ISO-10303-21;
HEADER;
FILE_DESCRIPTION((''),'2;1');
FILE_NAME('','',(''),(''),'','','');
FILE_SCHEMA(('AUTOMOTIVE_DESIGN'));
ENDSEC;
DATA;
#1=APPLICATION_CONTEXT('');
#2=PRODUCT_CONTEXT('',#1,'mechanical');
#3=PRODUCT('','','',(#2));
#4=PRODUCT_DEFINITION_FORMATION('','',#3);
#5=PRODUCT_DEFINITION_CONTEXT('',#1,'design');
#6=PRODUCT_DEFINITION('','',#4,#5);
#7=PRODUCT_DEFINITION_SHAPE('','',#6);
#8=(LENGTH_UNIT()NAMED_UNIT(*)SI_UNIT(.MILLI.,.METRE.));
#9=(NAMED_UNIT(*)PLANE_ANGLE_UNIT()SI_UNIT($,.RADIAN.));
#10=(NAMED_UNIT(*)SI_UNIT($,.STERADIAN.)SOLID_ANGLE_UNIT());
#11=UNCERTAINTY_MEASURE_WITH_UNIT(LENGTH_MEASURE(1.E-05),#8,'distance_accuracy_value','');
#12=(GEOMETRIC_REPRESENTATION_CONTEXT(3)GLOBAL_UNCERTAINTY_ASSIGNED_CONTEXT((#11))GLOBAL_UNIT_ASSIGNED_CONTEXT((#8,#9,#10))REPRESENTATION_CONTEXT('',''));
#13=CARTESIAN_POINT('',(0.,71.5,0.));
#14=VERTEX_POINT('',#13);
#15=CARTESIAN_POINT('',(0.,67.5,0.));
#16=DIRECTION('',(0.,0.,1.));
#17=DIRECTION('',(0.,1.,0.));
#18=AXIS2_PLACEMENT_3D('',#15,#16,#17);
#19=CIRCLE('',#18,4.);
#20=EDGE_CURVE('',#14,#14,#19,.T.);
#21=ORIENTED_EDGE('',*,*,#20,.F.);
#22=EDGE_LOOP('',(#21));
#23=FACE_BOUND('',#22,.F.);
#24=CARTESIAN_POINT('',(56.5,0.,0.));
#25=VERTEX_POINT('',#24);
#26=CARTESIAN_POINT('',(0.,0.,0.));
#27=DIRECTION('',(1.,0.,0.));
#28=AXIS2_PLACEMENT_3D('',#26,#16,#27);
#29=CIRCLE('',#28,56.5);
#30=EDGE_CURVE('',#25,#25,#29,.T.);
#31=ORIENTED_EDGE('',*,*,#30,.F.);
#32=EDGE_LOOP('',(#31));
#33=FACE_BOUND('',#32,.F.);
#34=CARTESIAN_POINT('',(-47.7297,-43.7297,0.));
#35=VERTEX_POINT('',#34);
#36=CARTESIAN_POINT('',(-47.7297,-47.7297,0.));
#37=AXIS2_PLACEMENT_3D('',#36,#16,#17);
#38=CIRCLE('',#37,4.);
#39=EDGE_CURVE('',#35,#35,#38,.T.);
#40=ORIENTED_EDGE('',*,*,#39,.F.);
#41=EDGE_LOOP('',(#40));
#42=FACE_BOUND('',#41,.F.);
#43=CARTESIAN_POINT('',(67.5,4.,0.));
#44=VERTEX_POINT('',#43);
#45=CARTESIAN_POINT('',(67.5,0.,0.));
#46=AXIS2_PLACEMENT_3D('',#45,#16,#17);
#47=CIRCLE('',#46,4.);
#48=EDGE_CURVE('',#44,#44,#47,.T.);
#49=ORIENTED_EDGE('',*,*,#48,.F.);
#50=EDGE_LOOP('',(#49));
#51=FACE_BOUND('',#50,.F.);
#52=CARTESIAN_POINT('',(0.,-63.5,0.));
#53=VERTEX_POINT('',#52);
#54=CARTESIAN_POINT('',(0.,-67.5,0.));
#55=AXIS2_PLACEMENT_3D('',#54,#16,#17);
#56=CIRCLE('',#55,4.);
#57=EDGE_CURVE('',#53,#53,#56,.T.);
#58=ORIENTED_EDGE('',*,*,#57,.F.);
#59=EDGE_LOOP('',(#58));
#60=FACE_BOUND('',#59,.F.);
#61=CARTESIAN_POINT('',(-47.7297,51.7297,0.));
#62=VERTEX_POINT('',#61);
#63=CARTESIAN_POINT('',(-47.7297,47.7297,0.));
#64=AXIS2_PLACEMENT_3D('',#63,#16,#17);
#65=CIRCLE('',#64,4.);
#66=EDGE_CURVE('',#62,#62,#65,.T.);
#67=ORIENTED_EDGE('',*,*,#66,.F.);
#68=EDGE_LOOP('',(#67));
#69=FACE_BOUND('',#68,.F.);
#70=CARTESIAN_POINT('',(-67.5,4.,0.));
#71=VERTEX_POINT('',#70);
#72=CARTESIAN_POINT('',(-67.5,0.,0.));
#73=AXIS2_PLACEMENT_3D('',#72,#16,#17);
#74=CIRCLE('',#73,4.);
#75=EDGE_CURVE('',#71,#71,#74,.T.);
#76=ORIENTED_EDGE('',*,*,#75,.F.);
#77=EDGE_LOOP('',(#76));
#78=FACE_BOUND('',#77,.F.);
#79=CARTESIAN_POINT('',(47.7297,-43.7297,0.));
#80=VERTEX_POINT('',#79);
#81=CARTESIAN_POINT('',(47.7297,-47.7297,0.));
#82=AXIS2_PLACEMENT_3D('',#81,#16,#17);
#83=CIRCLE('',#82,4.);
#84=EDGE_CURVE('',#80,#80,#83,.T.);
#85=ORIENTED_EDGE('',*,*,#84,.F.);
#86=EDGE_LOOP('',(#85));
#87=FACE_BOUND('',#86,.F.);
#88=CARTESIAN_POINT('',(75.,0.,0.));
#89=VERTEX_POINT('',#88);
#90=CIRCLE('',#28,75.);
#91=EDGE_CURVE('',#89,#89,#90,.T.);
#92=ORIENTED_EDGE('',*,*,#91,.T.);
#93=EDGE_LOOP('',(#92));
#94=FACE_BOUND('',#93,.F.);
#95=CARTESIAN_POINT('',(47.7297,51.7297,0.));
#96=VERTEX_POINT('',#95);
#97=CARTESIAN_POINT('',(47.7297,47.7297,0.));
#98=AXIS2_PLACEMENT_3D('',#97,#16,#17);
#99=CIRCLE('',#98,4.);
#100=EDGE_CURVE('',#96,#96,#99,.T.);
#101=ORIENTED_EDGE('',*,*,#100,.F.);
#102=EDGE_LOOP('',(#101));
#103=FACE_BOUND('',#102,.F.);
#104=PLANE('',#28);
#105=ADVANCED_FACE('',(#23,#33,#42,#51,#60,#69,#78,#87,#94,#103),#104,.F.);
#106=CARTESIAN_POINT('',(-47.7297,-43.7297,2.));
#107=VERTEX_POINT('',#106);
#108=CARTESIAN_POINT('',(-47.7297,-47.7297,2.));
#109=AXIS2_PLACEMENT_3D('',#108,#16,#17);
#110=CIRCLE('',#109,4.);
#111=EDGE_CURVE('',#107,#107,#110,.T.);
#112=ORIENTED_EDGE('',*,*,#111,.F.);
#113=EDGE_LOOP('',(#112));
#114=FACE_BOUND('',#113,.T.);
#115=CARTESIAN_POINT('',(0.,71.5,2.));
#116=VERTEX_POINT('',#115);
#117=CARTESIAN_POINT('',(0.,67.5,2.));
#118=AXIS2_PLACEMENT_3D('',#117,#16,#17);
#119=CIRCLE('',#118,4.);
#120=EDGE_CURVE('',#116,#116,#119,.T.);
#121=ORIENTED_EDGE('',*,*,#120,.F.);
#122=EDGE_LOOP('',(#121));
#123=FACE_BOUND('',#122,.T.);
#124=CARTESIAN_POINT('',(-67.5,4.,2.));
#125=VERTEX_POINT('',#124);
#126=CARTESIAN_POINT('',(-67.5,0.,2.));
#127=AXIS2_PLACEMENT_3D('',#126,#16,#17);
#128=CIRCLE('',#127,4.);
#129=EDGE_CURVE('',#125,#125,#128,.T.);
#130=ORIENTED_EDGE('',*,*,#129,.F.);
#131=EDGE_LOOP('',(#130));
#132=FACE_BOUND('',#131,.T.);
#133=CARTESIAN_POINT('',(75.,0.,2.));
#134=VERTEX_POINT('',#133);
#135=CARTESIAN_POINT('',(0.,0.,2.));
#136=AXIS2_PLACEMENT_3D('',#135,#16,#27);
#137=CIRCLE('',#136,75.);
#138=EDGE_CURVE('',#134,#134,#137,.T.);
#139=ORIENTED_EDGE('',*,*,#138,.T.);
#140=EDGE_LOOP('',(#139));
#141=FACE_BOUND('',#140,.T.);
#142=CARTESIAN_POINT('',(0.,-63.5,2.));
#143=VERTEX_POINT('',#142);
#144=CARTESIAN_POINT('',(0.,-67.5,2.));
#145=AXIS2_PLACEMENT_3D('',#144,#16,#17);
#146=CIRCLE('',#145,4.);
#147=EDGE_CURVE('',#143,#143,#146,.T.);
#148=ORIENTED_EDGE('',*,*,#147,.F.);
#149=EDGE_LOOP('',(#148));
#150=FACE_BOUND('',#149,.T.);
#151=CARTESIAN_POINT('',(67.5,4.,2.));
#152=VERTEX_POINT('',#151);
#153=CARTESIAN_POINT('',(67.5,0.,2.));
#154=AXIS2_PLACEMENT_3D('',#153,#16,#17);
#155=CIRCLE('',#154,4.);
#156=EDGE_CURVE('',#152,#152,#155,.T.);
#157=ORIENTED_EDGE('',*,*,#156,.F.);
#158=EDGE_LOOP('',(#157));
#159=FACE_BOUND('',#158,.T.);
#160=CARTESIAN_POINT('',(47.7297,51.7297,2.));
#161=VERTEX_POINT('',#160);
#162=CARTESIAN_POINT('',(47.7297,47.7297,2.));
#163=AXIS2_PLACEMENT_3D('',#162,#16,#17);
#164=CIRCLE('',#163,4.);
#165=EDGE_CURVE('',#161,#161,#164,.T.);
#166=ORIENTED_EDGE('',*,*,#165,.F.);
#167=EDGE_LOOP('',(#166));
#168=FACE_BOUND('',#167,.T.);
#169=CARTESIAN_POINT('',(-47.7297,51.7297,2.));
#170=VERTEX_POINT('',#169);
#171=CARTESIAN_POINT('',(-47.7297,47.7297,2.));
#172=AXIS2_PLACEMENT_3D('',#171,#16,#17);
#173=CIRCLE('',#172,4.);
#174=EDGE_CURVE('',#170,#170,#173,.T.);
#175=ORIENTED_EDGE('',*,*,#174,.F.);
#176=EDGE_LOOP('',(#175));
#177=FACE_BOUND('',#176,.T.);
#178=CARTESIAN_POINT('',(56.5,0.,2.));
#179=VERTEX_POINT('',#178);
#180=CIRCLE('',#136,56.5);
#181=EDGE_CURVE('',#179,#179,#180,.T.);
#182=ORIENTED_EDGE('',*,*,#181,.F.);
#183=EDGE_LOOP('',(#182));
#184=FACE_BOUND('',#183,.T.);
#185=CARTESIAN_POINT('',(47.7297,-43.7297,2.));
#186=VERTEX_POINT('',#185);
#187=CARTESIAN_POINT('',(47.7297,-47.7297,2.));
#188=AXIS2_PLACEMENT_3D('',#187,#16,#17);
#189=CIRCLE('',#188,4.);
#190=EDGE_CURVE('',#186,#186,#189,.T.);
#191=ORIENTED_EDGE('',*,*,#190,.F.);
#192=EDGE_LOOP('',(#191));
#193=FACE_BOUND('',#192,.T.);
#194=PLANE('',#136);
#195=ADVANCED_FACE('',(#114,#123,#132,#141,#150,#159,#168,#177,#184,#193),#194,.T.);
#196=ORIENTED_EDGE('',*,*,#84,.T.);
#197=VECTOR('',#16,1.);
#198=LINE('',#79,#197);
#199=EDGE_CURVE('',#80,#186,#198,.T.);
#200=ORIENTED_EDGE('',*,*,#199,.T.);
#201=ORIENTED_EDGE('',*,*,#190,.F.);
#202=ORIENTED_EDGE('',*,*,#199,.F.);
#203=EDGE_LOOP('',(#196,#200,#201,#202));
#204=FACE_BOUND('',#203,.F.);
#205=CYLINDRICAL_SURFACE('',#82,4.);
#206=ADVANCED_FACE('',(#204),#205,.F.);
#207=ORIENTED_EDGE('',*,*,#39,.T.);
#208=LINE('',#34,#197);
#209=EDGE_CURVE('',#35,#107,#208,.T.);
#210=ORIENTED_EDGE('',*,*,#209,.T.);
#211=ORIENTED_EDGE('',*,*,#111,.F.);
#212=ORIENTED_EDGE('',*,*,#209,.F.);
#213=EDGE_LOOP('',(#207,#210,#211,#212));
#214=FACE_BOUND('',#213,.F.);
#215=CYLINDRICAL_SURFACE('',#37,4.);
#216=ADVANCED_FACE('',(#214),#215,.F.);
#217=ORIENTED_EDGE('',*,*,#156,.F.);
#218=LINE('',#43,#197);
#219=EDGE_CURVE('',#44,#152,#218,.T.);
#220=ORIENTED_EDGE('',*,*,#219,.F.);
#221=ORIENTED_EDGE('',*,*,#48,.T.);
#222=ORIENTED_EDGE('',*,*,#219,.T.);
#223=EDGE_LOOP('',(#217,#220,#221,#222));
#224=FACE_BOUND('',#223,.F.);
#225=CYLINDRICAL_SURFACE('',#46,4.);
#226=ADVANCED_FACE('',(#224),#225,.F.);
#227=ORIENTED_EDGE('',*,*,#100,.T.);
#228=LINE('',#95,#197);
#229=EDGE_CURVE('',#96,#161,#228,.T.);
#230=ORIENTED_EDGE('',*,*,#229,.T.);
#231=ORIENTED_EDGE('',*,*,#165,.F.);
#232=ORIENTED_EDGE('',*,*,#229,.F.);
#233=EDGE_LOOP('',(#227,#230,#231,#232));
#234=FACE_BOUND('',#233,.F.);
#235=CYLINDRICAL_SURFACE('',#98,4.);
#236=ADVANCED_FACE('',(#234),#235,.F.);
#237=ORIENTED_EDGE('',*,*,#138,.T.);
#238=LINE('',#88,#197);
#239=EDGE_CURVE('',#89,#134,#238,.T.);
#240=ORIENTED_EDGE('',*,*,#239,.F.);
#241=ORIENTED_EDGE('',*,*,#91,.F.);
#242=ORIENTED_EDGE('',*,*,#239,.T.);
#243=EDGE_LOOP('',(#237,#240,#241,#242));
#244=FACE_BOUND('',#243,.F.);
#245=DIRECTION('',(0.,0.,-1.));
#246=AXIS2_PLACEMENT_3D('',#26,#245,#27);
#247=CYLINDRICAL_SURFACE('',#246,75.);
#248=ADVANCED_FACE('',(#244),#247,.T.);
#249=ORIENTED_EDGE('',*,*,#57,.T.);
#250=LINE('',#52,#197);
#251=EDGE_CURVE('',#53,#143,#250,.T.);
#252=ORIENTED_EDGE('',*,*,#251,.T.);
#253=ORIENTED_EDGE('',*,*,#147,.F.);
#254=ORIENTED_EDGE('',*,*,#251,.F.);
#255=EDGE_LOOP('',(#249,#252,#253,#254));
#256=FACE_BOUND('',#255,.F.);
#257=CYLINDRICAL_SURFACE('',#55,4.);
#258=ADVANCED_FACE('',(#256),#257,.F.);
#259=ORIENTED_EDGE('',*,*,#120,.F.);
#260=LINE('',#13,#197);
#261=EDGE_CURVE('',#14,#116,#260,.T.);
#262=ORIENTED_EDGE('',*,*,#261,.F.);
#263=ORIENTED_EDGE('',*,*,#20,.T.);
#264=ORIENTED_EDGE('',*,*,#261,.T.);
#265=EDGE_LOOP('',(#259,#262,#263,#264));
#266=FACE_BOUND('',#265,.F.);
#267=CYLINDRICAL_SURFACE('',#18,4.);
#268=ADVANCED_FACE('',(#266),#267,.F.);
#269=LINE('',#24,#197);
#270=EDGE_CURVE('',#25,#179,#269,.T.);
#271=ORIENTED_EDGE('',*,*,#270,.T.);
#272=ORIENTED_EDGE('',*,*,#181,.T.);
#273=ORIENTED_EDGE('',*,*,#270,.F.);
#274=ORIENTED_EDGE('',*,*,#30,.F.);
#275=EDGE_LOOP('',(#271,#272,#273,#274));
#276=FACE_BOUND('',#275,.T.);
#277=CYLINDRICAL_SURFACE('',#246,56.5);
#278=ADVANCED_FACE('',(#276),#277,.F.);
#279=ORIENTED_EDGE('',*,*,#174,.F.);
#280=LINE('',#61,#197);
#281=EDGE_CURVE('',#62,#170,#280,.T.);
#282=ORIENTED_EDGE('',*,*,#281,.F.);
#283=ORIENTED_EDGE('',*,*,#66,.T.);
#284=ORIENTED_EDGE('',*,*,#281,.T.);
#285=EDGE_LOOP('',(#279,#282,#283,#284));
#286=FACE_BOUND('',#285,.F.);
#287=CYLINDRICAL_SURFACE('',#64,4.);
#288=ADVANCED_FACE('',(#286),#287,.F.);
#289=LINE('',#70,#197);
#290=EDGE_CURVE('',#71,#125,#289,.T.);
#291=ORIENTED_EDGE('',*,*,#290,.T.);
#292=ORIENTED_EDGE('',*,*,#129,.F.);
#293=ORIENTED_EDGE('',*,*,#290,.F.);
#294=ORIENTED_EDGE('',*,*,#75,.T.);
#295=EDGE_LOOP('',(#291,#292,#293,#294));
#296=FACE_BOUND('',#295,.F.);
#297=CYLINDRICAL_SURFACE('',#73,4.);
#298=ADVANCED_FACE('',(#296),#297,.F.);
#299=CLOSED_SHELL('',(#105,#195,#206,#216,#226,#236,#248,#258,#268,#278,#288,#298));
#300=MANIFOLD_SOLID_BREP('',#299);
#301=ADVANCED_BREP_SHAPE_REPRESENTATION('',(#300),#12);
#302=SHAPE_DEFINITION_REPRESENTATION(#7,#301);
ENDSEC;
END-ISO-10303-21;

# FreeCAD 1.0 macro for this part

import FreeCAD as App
import Part
import Sketcher
from FreeCAD import Vector
Q = App.Units.Quantity

doc = App.newDocument("Part")
body = doc.addObject("PartDesign::Body", "Body")

# Sketch on XY plane
sketch1 = body.newObject("Sketcher::SketchObject", "Sketch")
sketch1.AttachmentSupport = (doc.getObject("XY_Plane"), [""])
sketch1.MapMode = "FlatFace"
sketch1.addGeometry(Part.Circle(Vector(0, 0, 0), Vector(0, 0, 1), 75), False)
sketch1.addGeometry(Part.Circle(Vector(0, 0, 0), Vector(0, 0, 1), 56.5), False)
sketch1.addConstraint(Sketcher.Constraint("Coincident", 0, 3, -1, 1))
sketch1.addConstraint(Sketcher.Constraint("Coincident", 1, 3, -1, 1))
sketch1.addConstraint(Sketcher.Constraint("Diameter", 0, Q("150 mm")))
sketch1.addConstraint(Sketcher.Constraint("Diameter", 1, Q("113 mm")))
pad1 = body.newObject("PartDesign::Pad", "Pad")
pad1.Profile = sketch1
pad1.Length = 2

# Sketch on XY plane
sketch2 = body.newObject("Sketcher::SketchObject", "Sketch001")
sketch2.AttachmentSupport = (doc.getObject("XY_Plane"), [""])
sketch2.MapMode = "FlatFace"
sketch2.addGeometry(Part.Circle(Vector(0, 67.5, 0), Vector(0, 0, 1), 4), False)
sketch2.addGeometry(Part.Circle(Vector(47.7297, 47.7297, 0), Vector(0, 0, 1), 4), False)
sketch2.addGeometry(Part.Circle(Vector(67.5, 0, 0), Vector(0, 0, 1), 4), False)
sketch2.addGeometry(Part.Circle(Vector(47.7297, -47.7297, 0), Vector(0, 0, 1), 4), False)
sketch2.addGeometry(Part.Circle(Vector(0, -67.5, 0), Vector(0, 0, 1), 4), False)
sketch2.addGeometry(Part.Circle(Vector(-47.7297, -47.7297, 0), Vector(0, 0, 1), 4), False)
sketch2.addGeometry(Part.Circle(Vector(-67.5, 0, 0), Vector(0, 0, 1), 4), False)
sketch2.addGeometry(Part.Circle(Vector(-47.7297, 47.7297, 0), Vector(0, 0, 1), 4), False)
sketch2.addConstraint(Sketcher.Constraint("Equal", 0, 1))
sketch2.addConstraint(Sketcher.Constraint("Equal", 1, 2))
sketch2.addConstraint(Sketcher.Constraint("Equal", 2, 3))
sketch2.addConstraint(Sketcher.Constraint("Equal", 3, 4))
sketch2.addConstraint(Sketcher.Constraint("Equal", 4, 5))
sketch2.addConstraint(Sketcher.Constraint("Equal", 5, 6))
sketch2.addConstraint(Sketcher.Constraint("Equal", 6, 7))
sketch2.addConstraint(Sketcher.Constraint("Symmetric", 0, 3, 4, 3, -1, 1))
sketch2.addConstraint(Sketcher.Constraint("Symmetric", 1, 3, 5, 3, -1, 1))
sketch2.addConstraint(Sketcher.Constraint("Symmetric", 2, 3, 6, 3, -1, 1))
sketch2.addConstraint(Sketcher.Constraint("Symmetric", 3, 3, 7, 3, -1, 1))
sketch2.addConstraint(Sketcher.Constraint("Symmetric", 3, 3, 5, 3, -2))
sketch2.addConstraint(Sketcher.Constraint("PointOnObject", 0, 3, -2))
sketch2.addConstraint(Sketcher.Constraint("PointOnObject", 2, 3, -1))
sketch2.addConstraint(Sketcher.Constraint("Diameter", 0, Q("8 mm")))
sketch2.addConstraint(Sketcher.Constraint("DistanceY", 4, 3, 0, 3, Q("135 mm")))
sketch2.addConstraint(Sketcher.Constraint("DistanceX", -1, 1, 2, 3, Q("67.5 mm")))
sketch2.addConstraint(Sketcher.Constraint("DistanceX", -1, 1, 1, 3, Q("47.7297 mm")))
sketch2.addConstraint(Sketcher.Constraint("DistanceY", -1, 1, 1, 3, Q("47.7297 mm")))
doc.recompute()
hole = body.newObject("PartDesign::Hole", "Hole")
hole.Profile = sketch2
hole.ThreadType = "None"
hole.Diameter = 8
hole.DepthType = "ThroughAll"
hole.Reversed = True

doc.recompute()
